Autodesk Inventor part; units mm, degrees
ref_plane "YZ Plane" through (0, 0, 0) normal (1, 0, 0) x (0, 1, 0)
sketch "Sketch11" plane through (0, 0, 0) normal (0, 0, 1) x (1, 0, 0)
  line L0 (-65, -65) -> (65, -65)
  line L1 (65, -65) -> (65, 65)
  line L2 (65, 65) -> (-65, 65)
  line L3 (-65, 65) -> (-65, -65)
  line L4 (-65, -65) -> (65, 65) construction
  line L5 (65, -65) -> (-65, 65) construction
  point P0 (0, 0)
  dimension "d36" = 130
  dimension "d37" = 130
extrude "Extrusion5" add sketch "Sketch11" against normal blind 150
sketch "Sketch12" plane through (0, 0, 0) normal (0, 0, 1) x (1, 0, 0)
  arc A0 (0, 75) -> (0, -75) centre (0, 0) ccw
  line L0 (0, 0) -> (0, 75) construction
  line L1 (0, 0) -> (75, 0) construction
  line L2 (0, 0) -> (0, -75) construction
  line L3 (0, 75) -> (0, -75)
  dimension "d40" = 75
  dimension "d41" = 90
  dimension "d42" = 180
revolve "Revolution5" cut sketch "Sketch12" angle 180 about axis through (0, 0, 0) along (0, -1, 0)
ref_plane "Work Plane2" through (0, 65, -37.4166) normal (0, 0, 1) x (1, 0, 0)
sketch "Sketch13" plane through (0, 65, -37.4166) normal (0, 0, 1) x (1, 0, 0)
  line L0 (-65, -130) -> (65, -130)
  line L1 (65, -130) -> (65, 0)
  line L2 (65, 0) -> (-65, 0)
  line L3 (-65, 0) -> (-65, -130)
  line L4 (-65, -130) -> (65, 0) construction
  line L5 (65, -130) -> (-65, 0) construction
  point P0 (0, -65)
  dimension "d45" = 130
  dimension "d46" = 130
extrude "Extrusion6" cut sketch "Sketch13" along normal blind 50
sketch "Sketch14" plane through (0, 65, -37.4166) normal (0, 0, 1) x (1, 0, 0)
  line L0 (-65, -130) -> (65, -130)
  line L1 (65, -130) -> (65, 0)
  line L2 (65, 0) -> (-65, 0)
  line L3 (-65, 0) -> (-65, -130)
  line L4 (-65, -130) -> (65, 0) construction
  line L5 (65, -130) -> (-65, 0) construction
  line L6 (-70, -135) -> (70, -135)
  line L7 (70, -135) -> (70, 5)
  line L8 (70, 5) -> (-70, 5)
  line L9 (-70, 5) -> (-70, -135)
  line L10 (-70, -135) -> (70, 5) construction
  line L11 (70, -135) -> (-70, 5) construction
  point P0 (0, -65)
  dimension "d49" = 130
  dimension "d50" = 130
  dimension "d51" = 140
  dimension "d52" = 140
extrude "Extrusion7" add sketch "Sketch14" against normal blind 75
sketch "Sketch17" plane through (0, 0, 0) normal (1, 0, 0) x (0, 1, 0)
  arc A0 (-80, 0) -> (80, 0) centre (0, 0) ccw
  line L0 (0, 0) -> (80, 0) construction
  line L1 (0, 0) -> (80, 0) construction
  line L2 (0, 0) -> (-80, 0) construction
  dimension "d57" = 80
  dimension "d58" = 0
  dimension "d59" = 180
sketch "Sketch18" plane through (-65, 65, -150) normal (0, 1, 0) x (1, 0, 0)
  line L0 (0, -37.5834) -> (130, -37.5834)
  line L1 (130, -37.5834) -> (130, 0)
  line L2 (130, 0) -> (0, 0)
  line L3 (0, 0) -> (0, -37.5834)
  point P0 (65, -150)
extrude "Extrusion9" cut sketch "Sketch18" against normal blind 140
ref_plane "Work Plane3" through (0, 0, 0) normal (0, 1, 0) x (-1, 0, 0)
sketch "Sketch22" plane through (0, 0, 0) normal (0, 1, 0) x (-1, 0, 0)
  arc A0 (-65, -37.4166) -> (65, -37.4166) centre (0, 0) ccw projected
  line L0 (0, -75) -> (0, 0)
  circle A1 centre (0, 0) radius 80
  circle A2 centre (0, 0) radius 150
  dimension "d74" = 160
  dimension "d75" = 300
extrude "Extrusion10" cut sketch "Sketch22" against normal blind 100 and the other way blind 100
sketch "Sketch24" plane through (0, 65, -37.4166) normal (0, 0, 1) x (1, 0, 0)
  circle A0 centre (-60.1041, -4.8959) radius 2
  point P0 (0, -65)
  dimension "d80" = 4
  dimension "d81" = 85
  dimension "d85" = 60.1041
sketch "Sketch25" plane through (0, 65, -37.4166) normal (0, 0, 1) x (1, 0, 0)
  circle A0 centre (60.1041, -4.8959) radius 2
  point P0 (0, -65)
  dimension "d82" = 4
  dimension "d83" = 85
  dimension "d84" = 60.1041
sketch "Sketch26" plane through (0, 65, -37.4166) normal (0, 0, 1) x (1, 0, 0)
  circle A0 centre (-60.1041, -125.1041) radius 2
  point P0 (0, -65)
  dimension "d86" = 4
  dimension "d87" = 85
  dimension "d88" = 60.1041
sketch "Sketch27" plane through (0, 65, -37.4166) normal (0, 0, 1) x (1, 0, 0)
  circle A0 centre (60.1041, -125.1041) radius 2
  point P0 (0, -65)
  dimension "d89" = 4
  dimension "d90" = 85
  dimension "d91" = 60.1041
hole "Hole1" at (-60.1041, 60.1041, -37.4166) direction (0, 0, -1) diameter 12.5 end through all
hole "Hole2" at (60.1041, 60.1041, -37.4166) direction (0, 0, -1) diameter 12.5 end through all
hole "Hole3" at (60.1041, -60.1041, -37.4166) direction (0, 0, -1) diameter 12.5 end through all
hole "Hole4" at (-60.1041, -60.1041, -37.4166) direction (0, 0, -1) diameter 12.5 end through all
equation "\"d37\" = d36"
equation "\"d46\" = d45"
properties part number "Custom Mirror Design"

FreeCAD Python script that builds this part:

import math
import FreeCAD as App
import Part
import Sketcher

doc = App.newDocument("Part")
params = doc.addObject("Spreadsheet::Sheet", "Params")
for row, (alias, value) in enumerate([
    ("sketch1_width", "130 mm"),
    ("pad1_length", "150 mm"),
    ("sketch2_radius", "75 mm"),
    ("groove_angle", "180 deg"),
    ("sketch3_width", "130 mm"),
    ("pocket1_length", "50 mm"),
    ("sketch4_width", "140 mm"),
    ("sketch4_width2", "130 mm"),
    ("pad2_length", "75 mm"),
    ("sketch5_width", "130 mm"),
    ("pocket2_length", "140 mm"),
    ("sketch6_diameter", "300 mm"),
    ("sketch6_diameter2", "160 mm"),
    ("sketch7_diameter", "12.5 mm"),
    ("hole_diameter", "12.5 mm"),
    ("sketch8_diameter", "12.5 mm"),
    ("hole2_diameter", "12.5 mm"),
    ("sketch9_diameter", "12.5 mm"),
    ("hole3_diameter", "12.5 mm"),
    ("sketch10_diameter", "12.5 mm"),
    ("hole4_diameter", "12.5 mm"),
], start=1):
    params.set(f"A{row}", alias)
    params.set(f"B{row}", "=" + value)
    params.setAlias(f"B{row}", alias)

body = doc.addObject("PartDesign::Body", "Body")

# Sketch on XY plane
sketch1 = doc.addObject("Sketcher::SketchObject", "Sketch")
body.addObject(sketch1)
sketch1.AttachmentSupport = (doc.XY_Plane, [""])
sketch1.MapMode = "FlatFace"
sketch1.addGeometry(Part.LineSegment(App.Vector(-65, 65, 0), App.Vector(-65, -65, 0)), False)
sketch1.addGeometry(Part.LineSegment(App.Vector(-65, -65, 0), App.Vector(65, -65, 0)), False)
sketch1.addGeometry(Part.LineSegment(App.Vector(65, -65, 0), App.Vector(65, 65, 0)), False)
sketch1.addGeometry(Part.LineSegment(App.Vector(65, 65, 0), App.Vector(-65, 65, 0)), False)
sketch1.addConstraint(Sketcher.Constraint("Coincident", 0, 2, 1, 1))
sketch1.addConstraint(Sketcher.Constraint("Coincident", 1, 2, 2, 1))
sketch1.addConstraint(Sketcher.Constraint("Coincident", 2, 2, 3, 1))
sketch1.addConstraint(Sketcher.Constraint("Coincident", 3, 2, 0, 1))
sketch1.addConstraint(Sketcher.Constraint("Vertical", 0))
sketch1.addConstraint(Sketcher.Constraint("Horizontal", 1))
sketch1.addConstraint(Sketcher.Constraint("Vertical", 2))
sketch1.addConstraint(Sketcher.Constraint("Horizontal", 3))
sketch1.addConstraint(Sketcher.Constraint("Symmetric", 0, 2, 2, 2, -1, 1))
sketch1.addConstraint(Sketcher.Constraint("Equal", 3, 0))
sketch1.addConstraint(Sketcher.Constraint("DistanceX", 1, 1, 1, 2, 130.0))
sketch1.setExpression("Constraints[10]", "Params.sketch1_width")
pad1 = doc.addObject("PartDesign::Pad", "Pad")
body.addObject(pad1)
pad1.Profile = sketch1
pad1.setExpression("Length", "Params.pad1_length")
pad1.Reversed = True

# Sketch on XY plane
sketch2 = doc.addObject("Sketcher::SketchObject", "Sketch001")
body.addObject(sketch2)
sketch2.AttachmentSupport = (doc.XY_Plane, [""])
sketch2.MapMode = "FlatFace"
sketch2.addGeometry(Part.LineSegment(App.Vector(0, -75, 0), App.Vector(0, 75, 0)), False)
sketch2.addGeometry(Part.ArcOfCircle(Part.Circle(App.Vector(0, 0, 0), App.Vector(0, 0, 1), 75), math.radians(90), math.radians(270)), False)
sketch2.addConstraint(Sketcher.Constraint("Coincident", 0, 1, 1, 2))
sketch2.addConstraint(Sketcher.Constraint("Coincident", 1, 1, 0, 2))
sketch2.addConstraint(Sketcher.Constraint("Vertical", 0))
sketch2.addConstraint(Sketcher.Constraint("Coincident", 1, 3, -1, 1))
sketch2.addConstraint(Sketcher.Constraint("PointOnObject", 0, 1, -2))
sketch2.addConstraint(Sketcher.Constraint("Radius", 1, 75.0))
sketch2.setExpression("Constraints[5]", "Params.sketch2_radius")
groove = doc.addObject("PartDesign::Groove", "Groove")
body.addObject(groove)
groove.Profile = sketch2
groove.ReferenceAxis = (sketch2, ["V_Axis"])
groove.setExpression("Angle", "Params.groove_angle")
groove.Reversed = True

# Sketch on XY plane
sketch3 = doc.addObject("Sketcher::SketchObject", "Sketch002")
body.addObject(sketch3)
sketch3.AttachmentSupport = (doc.XY_Plane, [""])
sketch3.MapMode = "FlatFace"
sketch3.AttachmentOffset = App.Placement(App.Vector(0, 0, -37.4166), App.Rotation())
sketch3.addGeometry(Part.LineSegment(App.Vector(-65, 65, 0), App.Vector(-65, -65, 0)), False)
sketch3.addGeometry(Part.LineSegment(App.Vector(-65, -65, 0), App.Vector(65, -65, 0)), False)
sketch3.addGeometry(Part.LineSegment(App.Vector(65, -65, 0), App.Vector(65, 65, 0)), False)
sketch3.addGeometry(Part.LineSegment(App.Vector(65, 65, 0), App.Vector(-65, 65, 0)), False)
sketch3.addConstraint(Sketcher.Constraint("Coincident", 0, 2, 1, 1))
sketch3.addConstraint(Sketcher.Constraint("Coincident", 1, 2, 2, 1))
sketch3.addConstraint(Sketcher.Constraint("Coincident", 2, 2, 3, 1))
sketch3.addConstraint(Sketcher.Constraint("Coincident", 3, 2, 0, 1))
sketch3.addConstraint(Sketcher.Constraint("Vertical", 0))
sketch3.addConstraint(Sketcher.Constraint("Horizontal", 1))
sketch3.addConstraint(Sketcher.Constraint("Vertical", 2))
sketch3.addConstraint(Sketcher.Constraint("Horizontal", 3))
sketch3.addConstraint(Sketcher.Constraint("Symmetric", 0, 2, 2, 2, -1, 1))
sketch3.addConstraint(Sketcher.Constraint("Equal", 3, 0))
sketch3.addConstraint(Sketcher.Constraint("DistanceX", 1, 1, 1, 2, 130.0))
sketch3.setExpression("Constraints[10]", "Params.sketch3_width")
pocket1 = doc.addObject("PartDesign::Pocket", "Pocket")
body.addObject(pocket1)
pocket1.Profile = sketch3
pocket1.setExpression("Length", "Params.pocket1_length")
pocket1.Reversed = True

# Sketch on XY plane
sketch4 = doc.addObject("Sketcher::SketchObject", "Sketch003")
body.addObject(sketch4)
sketch4.AttachmentSupport = (doc.XY_Plane, [""])
sketch4.MapMode = "FlatFace"
sketch4.AttachmentOffset = App.Placement(App.Vector(0, 0, -37.4166), App.Rotation())
sketch4.addGeometry(Part.LineSegment(App.Vector(-70, 70, 0), App.Vector(-70, -70, 0)), False)
sketch4.addGeometry(Part.LineSegment(App.Vector(-70, -70, 0), App.Vector(70, -70, 0)), False)
sketch4.addGeometry(Part.LineSegment(App.Vector(70, -70, 0), App.Vector(70, 70, 0)), False)
sketch4.addGeometry(Part.LineSegment(App.Vector(70, 70, 0), App.Vector(-70, 70, 0)), False)
sketch4.addGeometry(Part.LineSegment(App.Vector(65, -65, 0), App.Vector(-65, -65, 0)), False)
sketch4.addGeometry(Part.LineSegment(App.Vector(-65, -65, 0), App.Vector(-65, 65, 0)), False)
sketch4.addGeometry(Part.LineSegment(App.Vector(-65, 65, 0), App.Vector(65, 65, 0)), False)
sketch4.addGeometry(Part.LineSegment(App.Vector(65, 65, 0), App.Vector(65, -65, 0)), False)
sketch4.addConstraint(Sketcher.Constraint("Coincident", 0, 2, 1, 1))
sketch4.addConstraint(Sketcher.Constraint("Coincident", 1, 2, 2, 1))
sketch4.addConstraint(Sketcher.Constraint("Coincident", 2, 2, 3, 1))
sketch4.addConstraint(Sketcher.Constraint("Coincident", 3, 2, 0, 1))
sketch4.addConstraint(Sketcher.Constraint("Coincident", 4, 2, 5, 1))
sketch4.addConstraint(Sketcher.Constraint("Coincident", 5, 2, 6, 1))
sketch4.addConstraint(Sketcher.Constraint("Coincident", 6, 2, 7, 1))
sketch4.addConstraint(Sketcher.Constraint("Coincident", 7, 2, 4, 1))
sketch4.addConstraint(Sketcher.Constraint("Vertical", 0))
sketch4.addConstraint(Sketcher.Constraint("Horizontal", 1))
sketch4.addConstraint(Sketcher.Constraint("Vertical", 2))
sketch4.addConstraint(Sketcher.Constraint("Horizontal", 3))
sketch4.addConstraint(Sketcher.Constraint("Horizontal", 4))
sketch4.addConstraint(Sketcher.Constraint("Vertical", 5))
sketch4.addConstraint(Sketcher.Constraint("Horizontal", 6))
sketch4.addConstraint(Sketcher.Constraint("Vertical", 7))
sketch4.addConstraint(Sketcher.Constraint("Symmetric", 0, 2, 2, 2, -1, 1))
sketch4.addConstraint(Sketcher.Constraint("Symmetric", 4, 2, 6, 2, -1, 1))
sketch4.addConstraint(Sketcher.Constraint("Equal", 3, 0))
sketch4.addConstraint(Sketcher.Constraint("Equal", 6, 5))
sketch4.addConstraint(Sketcher.Constraint("DistanceX", 1, 1, 1, 2, 140.0))
sketch4.addConstraint(Sketcher.Constraint("DistanceX", 4, 2, 4, 1, 130.0))
sketch4.setExpression("Constraints[20]", "Params.sketch4_width")
sketch4.setExpression("Constraints[21]", "Params.sketch4_width2")
pad2 = doc.addObject("PartDesign::Pad", "Pad001")
body.addObject(pad2)
pad2.Profile = sketch4
pad2.setExpression("Length", "Params.pad2_length")
pad2.Reversed = True

# Sketch on XZ plane
sketch5 = doc.addObject("Sketcher::SketchObject", "Sketch004")
body.addObject(sketch5)
sketch5.AttachmentSupport = (doc.XZ_Plane, [""])
sketch5.MapMode = "FlatFace"
sketch5.AttachmentOffset = App.Placement(App.Vector(0, 0, -65), App.Rotation())
sketch5.addGeometry(Part.LineSegment(App.Vector(-65, -150, 0), App.Vector(-65, -112, 0)), False)
sketch5.addGeometry(Part.LineSegment(App.Vector(-65, -112, 0), App.Vector(65, -112, 0)), False)
sketch5.addGeometry(Part.LineSegment(App.Vector(65, -112, 0), App.Vector(65, -150, 0)), False)
sketch5.addGeometry(Part.LineSegment(App.Vector(65, -150, 0), App.Vector(-65, -150, 0)), False)
sketch5.addConstraint(Sketcher.Constraint("Coincident", 0, 2, 1, 1))
sketch5.addConstraint(Sketcher.Constraint("Coincident", 1, 2, 2, 1))
sketch5.addConstraint(Sketcher.Constraint("Coincident", 2, 2, 3, 1))
sketch5.addConstraint(Sketcher.Constraint("Coincident", 3, 2, 0, 1))
sketch5.addConstraint(Sketcher.Constraint("Vertical", 0))
sketch5.addConstraint(Sketcher.Constraint("Horizontal", 1))
sketch5.addConstraint(Sketcher.Constraint("Vertical", 2))
sketch5.addConstraint(Sketcher.Constraint("Horizontal", 3))
sketch5.addConstraint(Sketcher.Constraint("DistanceX", 1, 1, 1, 2, 130.0))
sketch5.addConstraint(Sketcher.Constraint("DistanceX", 0, 2, -1, 1, 65.0))
sketch5.addConstraint(Sketcher.Constraint("DistanceY", 2, 2, -1, 1, 150.0))
sketch5.addConstraint(Sketcher.Constraint("DistanceY", 0, 1, 0, 2, 37.5834))
sketch5.setExpression("Constraints[8]", "Params.sketch5_width")
pocket2 = doc.addObject("PartDesign::Pocket", "Pocket001")
body.addObject(pocket2)
pocket2.Profile = sketch5
pocket2.setExpression("Length", "Params.pocket2_length")
pocket2.Reversed = True

# Sketch on XZ plane
sketch6 = doc.addObject("Sketcher::SketchObject", "Sketch005")
body.addObject(sketch6)
sketch6.AttachmentSupport = (doc.XZ_Plane, [""])
sketch6.MapMode = "FlatFace"
sketch6.addGeometry(Part.Circle(App.Vector(0, 0, 0), App.Vector(0, 0, 1), 150), False)
sketch6.addGeometry(Part.Circle(App.Vector(0, 0, 0), App.Vector(0, 0, 1), 80), False)
sketch6.addConstraint(Sketcher.Constraint("Coincident", 0, 3, -1, 1))
sketch6.addConstraint(Sketcher.Constraint("Coincident", 1, 3, -1, 1))
sketch6.addConstraint(Sketcher.Constraint("Diameter", 0, 300.0))
sketch6.addConstraint(Sketcher.Constraint("Diameter", 1, 160.0))
sketch6.setExpression("Constraints[2]", "Params.sketch6_diameter")
sketch6.setExpression("Constraints[3]", "Params.sketch6_diameter2")
pocket3 = doc.addObject("PartDesign::Pocket", "Pocket002")
body.addObject(pocket3)
pocket3.Profile = sketch6
pocket3.Type = "ThroughAll"
pocket3.Midplane = True

# Sketch on XY plane
sketch7 = doc.addObject("Sketcher::SketchObject", "Sketch006")
body.addObject(sketch7)
sketch7.AttachmentSupport = (doc.XY_Plane, [""])
sketch7.MapMode = "FlatFace"
sketch7.AttachmentOffset = App.Placement(App.Vector(0, 0, -37.4166), App.Rotation())
sketch7.addGeometry(Part.Circle(App.Vector(-60, 60, 0), App.Vector(0, 0, 1), 6), False)
sketch7.addConstraint(Sketcher.Constraint("Diameter", 0, 12.5))
sketch7.addConstraint(Sketcher.Constraint("DistanceX", 0, 3, -1, 1, 60.104))
sketch7.addConstraint(Sketcher.Constraint("DistanceY", -1, 1, 0, 3, 60.104))
sketch7.setExpression("Constraints[0]", "Params.sketch7_diameter")
doc.recompute()
hole = doc.addObject("PartDesign::Hole", "Hole")
body.addObject(hole)
hole.Profile = sketch7
hole.ThreadType = "None"
hole.setExpression("Diameter", "Params.hole_diameter")
hole.DepthType = "ThroughAll"

# Sketch on XY plane
sketch8 = doc.addObject("Sketcher::SketchObject", "Sketch007")
body.addObject(sketch8)
sketch8.AttachmentSupport = (doc.XY_Plane, [""])
sketch8.MapMode = "FlatFace"
sketch8.AttachmentOffset = App.Placement(App.Vector(0, 0, -37.4166), App.Rotation())
sketch8.addGeometry(Part.Circle(App.Vector(60, 60, 0), App.Vector(0, 0, 1), 6), False)
sketch8.addConstraint(Sketcher.Constraint("Diameter", 0, 12.5))
sketch8.addConstraint(Sketcher.Constraint("DistanceX", -1, 1, 0, 3, 60.104))
sketch8.addConstraint(Sketcher.Constraint("DistanceY", -1, 1, 0, 3, 60.104))
sketch8.setExpression("Constraints[0]", "Params.sketch8_diameter")
doc.recompute()
hole2 = doc.addObject("PartDesign::Hole", "Hole001")
body.addObject(hole2)
hole2.Profile = sketch8
hole2.ThreadType = "None"
hole2.setExpression("Diameter", "Params.hole2_diameter")
hole2.DepthType = "ThroughAll"

# Sketch on XY plane
sketch9 = doc.addObject("Sketcher::SketchObject", "Sketch008")
body.addObject(sketch9)
sketch9.AttachmentSupport = (doc.XY_Plane, [""])
sketch9.MapMode = "FlatFace"
sketch9.AttachmentOffset = App.Placement(App.Vector(0, 0, -37.4166), App.Rotation())
sketch9.addGeometry(Part.Circle(App.Vector(60, -60, 0), App.Vector(0, 0, 1), 6), False)
sketch9.addConstraint(Sketcher.Constraint("Diameter", 0, 12.5))
sketch9.addConstraint(Sketcher.Constraint("DistanceX", -1, 1, 0, 3, 60.104))
sketch9.addConstraint(Sketcher.Constraint("DistanceY", 0, 3, -1, 1, 60.104))
sketch9.setExpression("Constraints[0]", "Params.sketch9_diameter")
doc.recompute()
hole3 = doc.addObject("PartDesign::Hole", "Hole002")
body.addObject(hole3)
hole3.Profile = sketch9
hole3.ThreadType = "None"
hole3.setExpression("Diameter", "Params.hole3_diameter")
hole3.DepthType = "ThroughAll"

# Sketch on XY plane
sketch10 = doc.addObject("Sketcher::SketchObject", "Sketch009")
body.addObject(sketch10)
sketch10.AttachmentSupport = (doc.XY_Plane, [""])
sketch10.MapMode = "FlatFace"
sketch10.AttachmentOffset = App.Placement(App.Vector(0, 0, -37.4166), App.Rotation())
sketch10.addGeometry(Part.Circle(App.Vector(-60, -60, 0), App.Vector(0, 0, 1), 6), False)
sketch10.addConstraint(Sketcher.Constraint("Diameter", 0, 12.5))
sketch10.addConstraint(Sketcher.Constraint("DistanceX", 0, 3, -1, 1, 60.104))
sketch10.addConstraint(Sketcher.Constraint("DistanceY", 0, 3, -1, 1, 60.104))
sketch10.setExpression("Constraints[0]", "Params.sketch10_diameter")
doc.recompute()
hole4 = doc.addObject("PartDesign::Hole", "Hole003")
body.addObject(hole4)
hole4.Profile = sketch10
hole4.ThreadType = "None"
hole4.setExpression("Diameter", "Params.hole4_diameter")
hole4.DepthType = "ThroughAll"

doc.recompute()
